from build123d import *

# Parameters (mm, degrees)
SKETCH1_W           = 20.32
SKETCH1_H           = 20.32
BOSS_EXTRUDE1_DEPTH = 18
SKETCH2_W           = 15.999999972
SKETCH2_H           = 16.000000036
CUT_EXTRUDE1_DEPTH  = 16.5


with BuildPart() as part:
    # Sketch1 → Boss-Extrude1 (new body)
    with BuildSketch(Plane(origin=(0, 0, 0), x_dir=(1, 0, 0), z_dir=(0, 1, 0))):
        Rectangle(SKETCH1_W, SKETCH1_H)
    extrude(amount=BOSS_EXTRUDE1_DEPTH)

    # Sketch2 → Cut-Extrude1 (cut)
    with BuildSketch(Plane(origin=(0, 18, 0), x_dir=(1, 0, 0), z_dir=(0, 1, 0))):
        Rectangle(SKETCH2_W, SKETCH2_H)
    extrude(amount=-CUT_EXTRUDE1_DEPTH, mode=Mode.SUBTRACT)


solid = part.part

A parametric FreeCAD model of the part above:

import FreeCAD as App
import Part
import Sketcher

V = App.Vector
Q = App.Units.Quantity


def add_polygon(sketch, points):
    """Adds a closed chain of lines whose ends are joined by coincident constraints."""
    first, n = sketch.GeometryCount, len(points)
    for a, b in zip(points, points[1:] + points[:1]):
        sketch.addGeometry(Part.LineSegment(App.Vector(*a, 0), App.Vector(*b, 0)), False)
    for i in range(n):
        sketch.addConstraint(Sketcher.Constraint("Coincident", first + i, 2, first + (i + 1) % n, 1))

doc = App.newDocument("Part")
body = doc.addObject("PartDesign::Body", "Body")

# Sketch on XZ plane
sketch1 = doc.addObject("Sketcher::SketchObject", "Sketch")
body.addObject(sketch1)
sketch1.AttachmentSupport = (doc.XZ_Plane, [""])
sketch1.MapMode = "FlatFace"
add_polygon(sketch1, [(-10, -10), (-10, 10), (10, 10), (10, -10)])  # lines 0-3
sketch1.addConstraint([
    Sketcher.Constraint("Vertical", 0),
    Sketcher.Constraint("Horizontal", 1),
    Sketcher.Constraint("Vertical", 2),
    Sketcher.Constraint("Horizontal", 3),
    Sketcher.Constraint("Symmetric", 0, 2, 2, 2, -1, 1),
    Sketcher.Constraint("Equal", 3, 0),
    Sketcher.Constraint("DistanceX", 1, 1, 1, 2, Q("20.32 mm")),
])
pad1 = doc.addObject("PartDesign::Pad", "Pad")
body.addObject(pad1)
pad1.Profile = sketch1
pad1.Length = 18
pad1.Reversed = True

# Sketch on XZ plane
sketch2 = doc.addObject("Sketcher::SketchObject", "Sketch001")
body.addObject(sketch2)
sketch2.AttachmentSupport = (doc.XZ_Plane, [""])
sketch2.MapMode = "FlatFace"
sketch2.AttachmentOffset = App.Placement(V(0, 0, -18), App.Rotation())
add_polygon(sketch2, [(-8, -8), (-8, 8), (8, 8), (8, -8)])  # lines 0-3
sketch2.addConstraint([
    Sketcher.Constraint("Vertical", 0),
    Sketcher.Constraint("Horizontal", 1),
    Sketcher.Constraint("Vertical", 2),
    Sketcher.Constraint("Horizontal", 3),
    Sketcher.Constraint("Symmetric", 0, 2, 2, 2, -1, 1),
    Sketcher.Constraint("Equal", 3, 0),
    Sketcher.Constraint("DistanceX", 1, 1, 1, 2, Q("16 mm")),
])
pocket1 = doc.addObject("PartDesign::Pocket", "Pocket")
body.addObject(pocket1)
pocket1.Profile = sketch2
pocket1.Length = 16.5
pocket1.Reversed = True

doc.recompute()
